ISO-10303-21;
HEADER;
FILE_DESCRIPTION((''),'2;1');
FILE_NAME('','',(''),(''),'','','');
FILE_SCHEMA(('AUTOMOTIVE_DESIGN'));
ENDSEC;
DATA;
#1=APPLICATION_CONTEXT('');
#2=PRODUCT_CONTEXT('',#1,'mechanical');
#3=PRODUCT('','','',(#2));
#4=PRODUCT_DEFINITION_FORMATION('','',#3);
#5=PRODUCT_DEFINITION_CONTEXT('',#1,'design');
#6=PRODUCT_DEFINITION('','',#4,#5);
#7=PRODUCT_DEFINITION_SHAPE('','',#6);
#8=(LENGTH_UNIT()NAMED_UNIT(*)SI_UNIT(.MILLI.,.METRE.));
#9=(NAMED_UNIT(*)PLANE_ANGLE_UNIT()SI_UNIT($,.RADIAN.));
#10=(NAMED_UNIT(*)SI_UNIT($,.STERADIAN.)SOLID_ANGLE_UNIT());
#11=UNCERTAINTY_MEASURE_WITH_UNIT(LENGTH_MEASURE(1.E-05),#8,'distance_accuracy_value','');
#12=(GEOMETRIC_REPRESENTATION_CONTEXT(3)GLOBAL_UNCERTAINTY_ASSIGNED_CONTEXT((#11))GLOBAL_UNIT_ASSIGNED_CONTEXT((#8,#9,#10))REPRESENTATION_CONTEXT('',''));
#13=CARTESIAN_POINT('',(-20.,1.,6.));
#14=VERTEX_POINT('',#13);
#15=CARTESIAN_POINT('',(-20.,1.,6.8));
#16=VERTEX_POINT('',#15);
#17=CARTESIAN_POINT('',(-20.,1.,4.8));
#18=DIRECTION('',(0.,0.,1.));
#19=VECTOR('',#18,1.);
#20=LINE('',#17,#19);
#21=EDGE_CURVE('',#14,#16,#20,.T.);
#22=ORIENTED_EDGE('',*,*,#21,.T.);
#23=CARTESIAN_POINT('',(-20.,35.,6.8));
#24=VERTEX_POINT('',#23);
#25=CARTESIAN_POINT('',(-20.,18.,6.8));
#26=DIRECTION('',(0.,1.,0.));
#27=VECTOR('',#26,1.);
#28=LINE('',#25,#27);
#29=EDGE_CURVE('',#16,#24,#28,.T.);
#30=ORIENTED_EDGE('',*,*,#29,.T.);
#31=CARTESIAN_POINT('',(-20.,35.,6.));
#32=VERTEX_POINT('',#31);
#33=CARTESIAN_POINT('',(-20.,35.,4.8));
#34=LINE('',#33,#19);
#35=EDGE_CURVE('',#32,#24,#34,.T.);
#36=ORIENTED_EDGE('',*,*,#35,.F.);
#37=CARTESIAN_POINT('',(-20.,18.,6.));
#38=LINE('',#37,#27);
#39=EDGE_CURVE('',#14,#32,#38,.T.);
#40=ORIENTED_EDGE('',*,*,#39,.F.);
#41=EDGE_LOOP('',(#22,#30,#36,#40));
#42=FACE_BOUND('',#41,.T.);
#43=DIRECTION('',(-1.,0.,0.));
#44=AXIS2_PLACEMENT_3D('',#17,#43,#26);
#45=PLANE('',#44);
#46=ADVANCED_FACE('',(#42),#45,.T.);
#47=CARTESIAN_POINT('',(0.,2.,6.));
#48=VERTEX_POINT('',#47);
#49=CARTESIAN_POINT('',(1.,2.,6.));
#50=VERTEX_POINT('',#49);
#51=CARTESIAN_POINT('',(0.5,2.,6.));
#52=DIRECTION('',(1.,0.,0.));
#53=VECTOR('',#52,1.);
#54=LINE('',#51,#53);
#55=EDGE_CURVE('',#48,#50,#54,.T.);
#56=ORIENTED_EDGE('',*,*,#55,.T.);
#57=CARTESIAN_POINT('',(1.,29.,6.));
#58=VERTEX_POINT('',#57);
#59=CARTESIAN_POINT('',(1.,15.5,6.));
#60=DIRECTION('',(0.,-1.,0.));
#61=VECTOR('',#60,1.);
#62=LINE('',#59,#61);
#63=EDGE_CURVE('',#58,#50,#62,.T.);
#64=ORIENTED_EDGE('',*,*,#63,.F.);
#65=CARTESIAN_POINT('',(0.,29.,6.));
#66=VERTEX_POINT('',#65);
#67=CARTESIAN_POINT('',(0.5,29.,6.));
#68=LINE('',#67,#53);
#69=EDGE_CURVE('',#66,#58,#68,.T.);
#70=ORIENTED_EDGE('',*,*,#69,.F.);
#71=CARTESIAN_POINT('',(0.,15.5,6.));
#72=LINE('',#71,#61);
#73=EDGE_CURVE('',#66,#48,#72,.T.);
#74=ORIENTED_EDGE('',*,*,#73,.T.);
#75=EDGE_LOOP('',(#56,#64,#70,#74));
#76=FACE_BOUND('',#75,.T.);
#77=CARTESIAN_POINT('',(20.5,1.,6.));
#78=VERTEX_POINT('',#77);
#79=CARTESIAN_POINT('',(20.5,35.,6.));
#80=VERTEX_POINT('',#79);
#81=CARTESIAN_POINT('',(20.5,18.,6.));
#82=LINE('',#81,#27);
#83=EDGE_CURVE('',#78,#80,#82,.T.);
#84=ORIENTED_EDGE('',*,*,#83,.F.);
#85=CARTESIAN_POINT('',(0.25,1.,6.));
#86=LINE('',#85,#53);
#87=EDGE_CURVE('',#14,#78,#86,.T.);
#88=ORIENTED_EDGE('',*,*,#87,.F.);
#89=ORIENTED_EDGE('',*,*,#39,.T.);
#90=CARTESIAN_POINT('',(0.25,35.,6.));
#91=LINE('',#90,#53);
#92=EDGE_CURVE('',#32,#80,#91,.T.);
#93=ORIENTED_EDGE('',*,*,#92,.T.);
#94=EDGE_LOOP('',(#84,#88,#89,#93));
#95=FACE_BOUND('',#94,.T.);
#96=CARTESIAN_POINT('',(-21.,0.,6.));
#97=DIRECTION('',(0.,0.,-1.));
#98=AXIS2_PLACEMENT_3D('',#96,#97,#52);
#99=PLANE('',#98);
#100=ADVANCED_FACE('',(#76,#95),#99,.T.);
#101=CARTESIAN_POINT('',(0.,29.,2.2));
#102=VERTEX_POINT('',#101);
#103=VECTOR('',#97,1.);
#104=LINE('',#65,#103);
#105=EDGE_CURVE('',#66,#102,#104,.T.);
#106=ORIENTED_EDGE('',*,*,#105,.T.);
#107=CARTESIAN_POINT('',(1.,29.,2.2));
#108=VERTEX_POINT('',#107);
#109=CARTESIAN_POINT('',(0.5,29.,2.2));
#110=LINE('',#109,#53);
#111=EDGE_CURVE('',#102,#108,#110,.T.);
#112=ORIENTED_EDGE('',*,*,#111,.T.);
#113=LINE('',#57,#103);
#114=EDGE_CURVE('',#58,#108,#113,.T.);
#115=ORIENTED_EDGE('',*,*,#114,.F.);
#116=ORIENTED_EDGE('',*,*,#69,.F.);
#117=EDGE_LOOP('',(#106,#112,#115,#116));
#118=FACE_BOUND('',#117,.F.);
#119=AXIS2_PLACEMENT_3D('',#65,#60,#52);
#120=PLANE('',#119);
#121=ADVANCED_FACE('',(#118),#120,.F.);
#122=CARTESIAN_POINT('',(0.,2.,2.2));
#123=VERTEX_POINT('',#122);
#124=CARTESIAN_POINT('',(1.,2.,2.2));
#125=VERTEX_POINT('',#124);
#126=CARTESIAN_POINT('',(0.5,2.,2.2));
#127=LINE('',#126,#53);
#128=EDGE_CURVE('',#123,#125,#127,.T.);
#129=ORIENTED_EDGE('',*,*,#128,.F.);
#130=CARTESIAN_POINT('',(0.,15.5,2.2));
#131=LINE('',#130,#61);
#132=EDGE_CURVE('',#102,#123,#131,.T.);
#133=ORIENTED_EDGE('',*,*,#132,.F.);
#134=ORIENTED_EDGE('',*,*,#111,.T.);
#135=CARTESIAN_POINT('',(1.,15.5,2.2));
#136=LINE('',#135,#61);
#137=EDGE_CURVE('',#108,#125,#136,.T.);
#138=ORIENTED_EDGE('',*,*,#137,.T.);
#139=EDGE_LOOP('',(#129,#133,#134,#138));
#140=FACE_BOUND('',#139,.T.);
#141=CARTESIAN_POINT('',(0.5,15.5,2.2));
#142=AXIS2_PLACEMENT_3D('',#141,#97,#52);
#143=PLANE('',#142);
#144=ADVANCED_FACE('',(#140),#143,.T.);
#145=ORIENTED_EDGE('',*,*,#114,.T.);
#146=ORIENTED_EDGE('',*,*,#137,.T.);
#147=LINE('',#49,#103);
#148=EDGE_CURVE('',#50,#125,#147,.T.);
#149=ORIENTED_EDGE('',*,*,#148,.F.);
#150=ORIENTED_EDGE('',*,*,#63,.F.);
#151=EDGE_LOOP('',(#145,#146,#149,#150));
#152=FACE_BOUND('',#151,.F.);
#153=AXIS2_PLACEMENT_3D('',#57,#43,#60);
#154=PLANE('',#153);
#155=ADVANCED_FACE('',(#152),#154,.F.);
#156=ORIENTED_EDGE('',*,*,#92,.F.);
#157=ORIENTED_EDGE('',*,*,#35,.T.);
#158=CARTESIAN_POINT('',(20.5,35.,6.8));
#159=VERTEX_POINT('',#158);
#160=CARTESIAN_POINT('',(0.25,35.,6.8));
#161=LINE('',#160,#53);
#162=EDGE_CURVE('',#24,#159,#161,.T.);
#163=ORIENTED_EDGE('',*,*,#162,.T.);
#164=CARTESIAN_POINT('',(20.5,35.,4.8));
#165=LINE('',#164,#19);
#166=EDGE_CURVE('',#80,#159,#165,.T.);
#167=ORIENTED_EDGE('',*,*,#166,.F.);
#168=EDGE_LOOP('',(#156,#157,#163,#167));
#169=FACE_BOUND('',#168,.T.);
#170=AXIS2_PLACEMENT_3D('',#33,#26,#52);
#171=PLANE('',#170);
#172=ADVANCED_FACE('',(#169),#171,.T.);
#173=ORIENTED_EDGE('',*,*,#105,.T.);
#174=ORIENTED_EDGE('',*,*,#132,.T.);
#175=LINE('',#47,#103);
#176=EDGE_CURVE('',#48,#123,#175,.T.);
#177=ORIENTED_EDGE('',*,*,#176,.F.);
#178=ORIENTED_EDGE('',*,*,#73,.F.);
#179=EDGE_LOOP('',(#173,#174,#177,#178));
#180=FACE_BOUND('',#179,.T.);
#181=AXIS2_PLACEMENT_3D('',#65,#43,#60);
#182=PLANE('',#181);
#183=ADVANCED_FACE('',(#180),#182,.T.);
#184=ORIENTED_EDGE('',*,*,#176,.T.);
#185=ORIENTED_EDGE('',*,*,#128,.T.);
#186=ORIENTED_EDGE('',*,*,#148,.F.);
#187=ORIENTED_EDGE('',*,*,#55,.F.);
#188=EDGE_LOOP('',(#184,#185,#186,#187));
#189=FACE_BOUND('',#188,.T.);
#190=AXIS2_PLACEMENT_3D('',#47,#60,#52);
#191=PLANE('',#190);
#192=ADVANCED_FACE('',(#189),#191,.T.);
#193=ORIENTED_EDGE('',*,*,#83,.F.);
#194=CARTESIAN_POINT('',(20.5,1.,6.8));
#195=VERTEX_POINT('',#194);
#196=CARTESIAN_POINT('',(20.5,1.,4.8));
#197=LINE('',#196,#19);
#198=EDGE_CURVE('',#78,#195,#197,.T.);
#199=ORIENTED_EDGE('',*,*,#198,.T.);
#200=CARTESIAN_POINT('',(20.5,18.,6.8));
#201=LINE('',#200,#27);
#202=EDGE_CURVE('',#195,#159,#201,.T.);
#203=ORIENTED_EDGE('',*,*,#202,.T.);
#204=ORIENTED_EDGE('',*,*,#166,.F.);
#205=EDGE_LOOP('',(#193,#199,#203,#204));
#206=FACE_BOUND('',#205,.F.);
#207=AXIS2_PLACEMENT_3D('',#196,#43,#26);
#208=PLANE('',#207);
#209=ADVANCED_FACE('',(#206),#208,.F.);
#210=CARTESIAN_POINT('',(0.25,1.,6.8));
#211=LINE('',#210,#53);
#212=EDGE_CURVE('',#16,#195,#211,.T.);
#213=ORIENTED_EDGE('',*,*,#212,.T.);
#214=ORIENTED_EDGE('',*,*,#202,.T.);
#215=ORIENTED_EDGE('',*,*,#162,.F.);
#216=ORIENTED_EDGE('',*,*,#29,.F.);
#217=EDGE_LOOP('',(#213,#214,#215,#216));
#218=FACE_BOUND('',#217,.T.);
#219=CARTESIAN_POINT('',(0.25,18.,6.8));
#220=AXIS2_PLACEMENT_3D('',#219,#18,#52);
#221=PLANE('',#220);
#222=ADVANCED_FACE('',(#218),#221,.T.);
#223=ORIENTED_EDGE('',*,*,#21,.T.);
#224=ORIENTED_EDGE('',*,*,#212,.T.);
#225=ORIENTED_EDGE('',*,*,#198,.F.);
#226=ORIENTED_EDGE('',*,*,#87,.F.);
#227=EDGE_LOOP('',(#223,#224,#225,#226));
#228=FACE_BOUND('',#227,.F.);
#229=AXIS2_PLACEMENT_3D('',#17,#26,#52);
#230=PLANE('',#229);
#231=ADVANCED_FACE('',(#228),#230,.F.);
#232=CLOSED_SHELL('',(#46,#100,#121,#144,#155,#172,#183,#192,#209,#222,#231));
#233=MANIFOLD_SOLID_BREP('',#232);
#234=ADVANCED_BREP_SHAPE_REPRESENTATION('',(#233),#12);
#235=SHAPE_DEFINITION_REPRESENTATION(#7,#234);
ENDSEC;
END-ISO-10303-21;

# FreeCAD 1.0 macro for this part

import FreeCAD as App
import Part
import Sketcher
Q = App.Units.Quantity

doc = App.newDocument("Part")
body = doc.addObject("PartDesign::Body", "Body")

sketch1 = body.newObject("Sketcher::SketchObject", "Sketch")
sketch1.AttachmentSupport = (doc.getObject("XY_Plane"), [""])
sketch1.MapMode = "FlatFace"
sketch1.addGeometry([
    Part.LineSegment(App.Vector(-21, 36, 0), App.Vector(-21, 0, 0)),
    Part.LineSegment(App.Vector(-21, 0, 0), App.Vector(21.5, 0, 0)),
    Part.LineSegment(App.Vector(21.5, 0, 0), App.Vector(21.5, 36, 0)),
    Part.LineSegment(App.Vector(21.5, 36, 0), App.Vector(-21, 36, 0)),
], False)
sketch1.addConstraint([
    Sketcher.Constraint("Coincident", 0, 2, 1, 1),
    Sketcher.Constraint("Coincident", 1, 2, 2, 1),
    Sketcher.Constraint("Coincident", 2, 2, 3, 1),
    Sketcher.Constraint("Coincident", 3, 2, 0, 1),
    Sketcher.Constraint("Vertical", 0),
    Sketcher.Constraint("Horizontal", 1),
    Sketcher.Constraint("Vertical", 2),
    Sketcher.Constraint("Horizontal", 3),
    Sketcher.Constraint("PointOnObject", 0, 2, -1),
    Sketcher.Constraint("DistanceY", 0, 2, 0, 1, Q("36 mm")),
    Sketcher.Constraint("DistanceX", 1, 1, 1, 2, Q("42.5 mm")),
    Sketcher.Constraint("DistanceX", 0, 2, -1, 1, Q("21 mm")),
])
pad1 = body.newObject("PartDesign::Pad", "Pad")
pad1.Profile = sketch1
pad1.Length = 6

sketch2 = body.newObject("Sketcher::SketchObject", "Sketch001")
sketch2.AttachmentSupport = (doc.getObject("XY_Plane"), [""])
sketch2.MapMode = "FlatFace"
sketch2.AttachmentOffset = App.Placement(App.Vector(0, 0, 6), App.Rotation())
sketch2.addGeometry([
    Part.LineSegment(App.Vector(-19, 34, 0), App.Vector(-19, 2, 0)),
    Part.LineSegment(App.Vector(-19, 2, 0), App.Vector(19.5, 2, 0)),
    Part.LineSegment(App.Vector(19.5, 2, 0), App.Vector(19.5, 34, 0)),
    Part.LineSegment(App.Vector(19.5, 34, 0), App.Vector(-19, 34, 0)),
], False)
sketch2.addConstraint([
    Sketcher.Constraint("Coincident", 0, 2, 1, 1),
    Sketcher.Constraint("Coincident", 1, 2, 2, 1),
    Sketcher.Constraint("Coincident", 2, 2, 3, 1),
    Sketcher.Constraint("Coincident", 3, 2, 0, 1),
    Sketcher.Constraint("Vertical", 0),
    Sketcher.Constraint("Horizontal", 1),
    Sketcher.Constraint("Vertical", 2),
    Sketcher.Constraint("Horizontal", 3),
    Sketcher.Constraint("DistanceY", 0, 2, 0, 1, Q("32 mm")),
    Sketcher.Constraint("DistanceX", 1, 1, 1, 2, Q("38.5 mm")),
    Sketcher.Constraint("DistanceX", 0, 2, -1, 1, Q("19 mm")),
    Sketcher.Constraint("DistanceY", -1, 1, 0, 2, Q("2 mm")),
])
pocket1 = body.newObject("PartDesign::Pocket", "Pocket")
pocket1.Profile = sketch2
pocket1.Length = 5

sketch3 = body.newObject("Sketcher::SketchObject", "Sketch002")
sketch3.AttachmentSupport = (doc.getObject("XY_Plane"), [""])
sketch3.MapMode = "FlatFace"
sketch3.AttachmentOffset = App.Placement(App.Vector(0, 0, 6), App.Rotation())
sketch3.addGeometry([
    Part.LineSegment(App.Vector(-20, 35, 0), App.Vector(-20, 1, 0)),
    Part.LineSegment(App.Vector(-20, 1, 0), App.Vector(20.5, 1, 0)),
    Part.LineSegment(App.Vector(20.5, 1, 0), App.Vector(20.5, 35, 0)),
    Part.LineSegment(App.Vector(20.5, 35, 0), App.Vector(-20, 35, 0)),
], False)
sketch3.addConstraint([
    Sketcher.Constraint("Coincident", 0, 2, 1, 1),
    Sketcher.Constraint("Coincident", 1, 2, 2, 1),
    Sketcher.Constraint("Coincident", 2, 2, 3, 1),
    Sketcher.Constraint("Coincident", 3, 2, 0, 1),
    Sketcher.Constraint("Vertical", 0),
    Sketcher.Constraint("Horizontal", 1),
    Sketcher.Constraint("Vertical", 2),
    Sketcher.Constraint("Horizontal", 3),
    Sketcher.Constraint("DistanceY", 0, 2, 0, 1, Q("34 mm")),
    Sketcher.Constraint("DistanceX", 1, 1, 1, 2, Q("40.5 mm")),
    Sketcher.Constraint("DistanceX", 0, 2, -1, 1, Q("20 mm")),
    Sketcher.Constraint("DistanceY", -1, 1, 0, 2, Q("1 mm")),
])
pocket2 = body.newObject("PartDesign::Pocket", "Pocket001")
pocket2.Profile = sketch3
pocket2.Length = 1.2

sketch4 = body.newObject("Sketcher::SketchObject", "Sketch003")
sketch4.AttachmentSupport = (doc.getObject("XY_Plane"), [""])
sketch4.MapMode = "FlatFace"
sketch4.AttachmentOffset = App.Placement(App.Vector(0, 0, 1), App.Rotation())
sketch4.addGeometry([
    Part.LineSegment(App.Vector(-1, 34, 0), App.Vector(-1, 7, 0)),
    Part.LineSegment(App.Vector(-1, 7, 0), App.Vector(0, 7, 0)),
    Part.LineSegment(App.Vector(0, 7, 0), App.Vector(0, 34, 0)),
    Part.LineSegment(App.Vector(0, 34, 0), App.Vector(-1, 34, 0)),
], False)
sketch4.addConstraint([
    Sketcher.Constraint("Coincident", 0, 2, 1, 1),
    Sketcher.Constraint("Coincident", 1, 2, 2, 1),
    Sketcher.Constraint("Coincident", 2, 2, 3, 1),
    Sketcher.Constraint("Coincident", 3, 2, 0, 1),
    Sketcher.Constraint("Vertical", 0),
    Sketcher.Constraint("Horizontal", 1),
    Sketcher.Constraint("Vertical", 2),
    Sketcher.Constraint("Horizontal", 3),
    Sketcher.Constraint("PointOnObject", 1, 2, -2),
    Sketcher.Constraint("DistanceX", 1, 1, 1, 2, Q("1 mm")),
    Sketcher.Constraint("DistanceY", 0, 2, 0, 1, Q("27 mm")),
    Sketcher.Constraint("DistanceY", -1, 1, 0, 2, Q("7 mm")),
])
pad2 = body.newObject("PartDesign::Pad", "Pad001")
pad2.Profile = sketch4
pad2.Length = 3.8

sketch5 = body.newObject("Sketcher::SketchObject", "Sketch004")
sketch5.AttachmentSupport = (doc.getObject("XY_Plane"), [""])
sketch5.MapMode = "FlatFace"
sketch5.AttachmentOffset = App.Placement(App.Vector(0, 0, 4.8), App.Rotation())
sketch5.addGeometry([
    Part.LineSegment(App.Vector(-20, 35, 0), App.Vector(-20, 1, 0)),
    Part.LineSegment(App.Vector(-20, 1, 0), App.Vector(20.5, 1, 0)),
    Part.LineSegment(App.Vector(20.5, 1, 0), App.Vector(20.5, 35, 0)),
    Part.LineSegment(App.Vector(20.5, 35, 0), App.Vector(-20, 35, 0)),
], False)
sketch5.addConstraint([
    Sketcher.Constraint("Coincident", 0, 2, 1, 1),
    Sketcher.Constraint("Coincident", 1, 2, 2, 1),
    Sketcher.Constraint("Coincident", 2, 2, 3, 1),
    Sketcher.Constraint("Coincident", 3, 2, 0, 1),
    Sketcher.Constraint("Vertical", 0),
    Sketcher.Constraint("Horizontal", 1),
    Sketcher.Constraint("Vertical", 2),
    Sketcher.Constraint("Horizontal", 3),
    Sketcher.Constraint("DistanceY", 0, 2, 0, 1, Q("34 mm")),
    Sketcher.Constraint("DistanceX", 1, 1, 1, 2, Q("40.5 mm")),
    Sketcher.Constraint("DistanceX", 0, 2, -1, 1, Q("20 mm")),
    Sketcher.Constraint("DistanceY", -1, 1, 0, 2, Q("1 mm")),
])
pad3 = body.newObject("PartDesign::Pad", "Pad002")
pad3.Profile = sketch5
pad3.Length = 2

sketch6 = body.newObject("Sketcher::SketchObject", "Sketch005")
sketch6.AttachmentSupport = (doc.getObject("XZ_Plane"), [""])
sketch6.MapMode = "FlatFace"
sketch6.addGeometry([
    Part.LineSegment(App.Vector(-21, 6, 0), App.Vector(-21, 0, 0)),
    Part.LineSegment(App.Vector(-21, 0, 0), App.Vector(21.5, 0, 0)),
    Part.LineSegment(App.Vector(21.5, 0, 0), App.Vector(21.5, 6, 0)),
    Part.LineSegment(App.Vector(21.5, 6, 0), App.Vector(-21, 6, 0)),
], False)
sketch6.addConstraint([
    Sketcher.Constraint("Coincident", 0, 2, 1, 1),
    Sketcher.Constraint("Coincident", 1, 2, 2, 1),
    Sketcher.Constraint("Coincident", 2, 2, 3, 1),
    Sketcher.Constraint("Coincident", 3, 2, 0, 1),
    Sketcher.Constraint("Vertical", 0),
    Sketcher.Constraint("Horizontal", 1),
    Sketcher.Constraint("Vertical", 2),
    Sketcher.Constraint("Horizontal", 3),
    Sketcher.Constraint("PointOnObject", 0, 2, -1),
    Sketcher.Constraint("DistanceY", 0, 2, 0, 1, Q("6 mm")),
    Sketcher.Constraint("DistanceX", 1, 1, 1, 2, Q("42.5 mm")),
    Sketcher.Constraint("DistanceX", 0, 2, -1, 1, Q("21 mm")),
])
pocket3 = body.newObject("PartDesign::Pocket", "Pocket002")
pocket3.Profile = sketch6
pocket3.Type = "ThroughAll"

sketch7 = body.newObject("Sketcher::SketchObject", "Sketch006")
sketch7.AttachmentSupport = (doc.getObject("XY_Plane"), [""])
sketch7.MapMode = "FlatFace"
sketch7.AttachmentOffset = App.Placement(App.Vector(0, 0, 6), App.Rotation())
sketch7.addGeometry([
    Part.LineSegment(App.Vector(0, 2, 0), App.Vector(0, 29, 0)),
    Part.LineSegment(App.Vector(0, 29, 0), App.Vector(1, 29, 0)),
    Part.LineSegment(App.Vector(1, 29, 0), App.Vector(1, 2, 0)),
    Part.LineSegment(App.Vector(1, 2, 0), App.Vector(0, 2, 0)),
], False)
sketch7.addConstraint([
    Sketcher.Constraint("Coincident", 0, 2, 1, 1),
    Sketcher.Constraint("Coincident", 1, 2, 2, 1),
    Sketcher.Constraint("Coincident", 2, 2, 3, 1),
    Sketcher.Constraint("Coincident", 3, 2, 0, 1),
    Sketcher.Constraint("Vertical", 0),
    Sketcher.Constraint("Horizontal", 1),
    Sketcher.Constraint("Vertical", 2),
    Sketcher.Constraint("Horizontal", 3),
    Sketcher.Constraint("PointOnObject", 0, 2, -2),
    Sketcher.Constraint("DistanceX", 1, 1, 1, 2, Q("1 mm")),
    Sketcher.Constraint("DistanceY", 0, 1, 0, 2, Q("27 mm")),
    Sketcher.Constraint("DistanceY", -1, 1, 0, 2, Q("29 mm")),
])
pad4 = body.newObject("PartDesign::Pad", "Pad003")
pad4.Profile = sketch7
pad4.Length = 3.8
pad4.Reversed = True

doc.recompute()
